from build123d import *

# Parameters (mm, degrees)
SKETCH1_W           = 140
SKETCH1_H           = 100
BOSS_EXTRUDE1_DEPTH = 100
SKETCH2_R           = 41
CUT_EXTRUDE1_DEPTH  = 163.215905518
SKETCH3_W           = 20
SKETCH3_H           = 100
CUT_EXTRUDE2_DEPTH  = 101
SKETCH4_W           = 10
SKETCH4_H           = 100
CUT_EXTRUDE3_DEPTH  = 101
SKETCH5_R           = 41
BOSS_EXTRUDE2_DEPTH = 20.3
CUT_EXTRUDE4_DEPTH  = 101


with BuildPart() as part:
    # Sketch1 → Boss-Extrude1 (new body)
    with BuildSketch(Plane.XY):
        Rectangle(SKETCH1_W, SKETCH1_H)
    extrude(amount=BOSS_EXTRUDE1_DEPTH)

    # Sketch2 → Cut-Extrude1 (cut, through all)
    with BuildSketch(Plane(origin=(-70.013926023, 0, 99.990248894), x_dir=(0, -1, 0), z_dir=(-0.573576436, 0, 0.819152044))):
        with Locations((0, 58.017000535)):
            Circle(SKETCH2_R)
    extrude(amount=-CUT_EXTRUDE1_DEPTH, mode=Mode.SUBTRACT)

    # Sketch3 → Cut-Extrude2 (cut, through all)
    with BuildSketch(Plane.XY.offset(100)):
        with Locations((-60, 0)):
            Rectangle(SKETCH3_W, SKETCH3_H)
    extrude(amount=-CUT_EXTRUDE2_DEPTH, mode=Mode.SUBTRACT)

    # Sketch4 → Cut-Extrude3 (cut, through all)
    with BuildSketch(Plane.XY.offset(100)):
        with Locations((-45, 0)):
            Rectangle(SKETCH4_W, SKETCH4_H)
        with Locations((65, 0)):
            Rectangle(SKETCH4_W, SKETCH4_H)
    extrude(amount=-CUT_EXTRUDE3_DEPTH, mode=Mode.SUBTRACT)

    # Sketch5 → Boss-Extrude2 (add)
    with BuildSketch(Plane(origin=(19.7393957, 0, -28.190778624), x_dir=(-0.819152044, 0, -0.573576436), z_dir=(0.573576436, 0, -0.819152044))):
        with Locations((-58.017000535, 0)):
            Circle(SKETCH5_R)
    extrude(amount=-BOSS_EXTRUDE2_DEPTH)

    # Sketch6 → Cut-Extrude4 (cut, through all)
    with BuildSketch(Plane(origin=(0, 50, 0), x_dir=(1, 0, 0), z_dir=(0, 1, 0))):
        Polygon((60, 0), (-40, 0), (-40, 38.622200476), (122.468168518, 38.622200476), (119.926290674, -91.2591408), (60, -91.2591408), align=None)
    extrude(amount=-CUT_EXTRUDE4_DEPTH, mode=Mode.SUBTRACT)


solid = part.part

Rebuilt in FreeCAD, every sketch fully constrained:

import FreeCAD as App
import Part
import Sketcher

doc = App.newDocument("Part")
body = doc.addObject("PartDesign::Body", "Body")

# Sketch on XY plane
sketch1 = body.newObject("Sketcher::SketchObject", "Sketch")
sketch1.AttachmentSupport = (doc.getObject("XY_Plane"), [""])
sketch1.MapMode = "FlatFace"
sketch1.addGeometry(Part.LineSegment(App.Vector(-70, 50, 0), App.Vector(-70, -50, 0)), False)
sketch1.addGeometry(Part.LineSegment(App.Vector(-70, -50, 0), App.Vector(70, -50, 0)), False)
sketch1.addGeometry(Part.LineSegment(App.Vector(70, -50, 0), App.Vector(70, 50, 0)), False)
sketch1.addGeometry(Part.LineSegment(App.Vector(70, 50, 0), App.Vector(-70, 50, 0)), False)
sketch1.addConstraint(Sketcher.Constraint("Coincident", 0, 2, 1, 1))
sketch1.addConstraint(Sketcher.Constraint("Coincident", 1, 2, 2, 1))
sketch1.addConstraint(Sketcher.Constraint("Coincident", 2, 2, 3, 1))
sketch1.addConstraint(Sketcher.Constraint("Coincident", 3, 2, 0, 1))
sketch1.addConstraint(Sketcher.Constraint("Vertical", 0))
sketch1.addConstraint(Sketcher.Constraint("Horizontal", 1))
sketch1.addConstraint(Sketcher.Constraint("Vertical", 2))
sketch1.addConstraint(Sketcher.Constraint("Horizontal", 3))
sketch1.addConstraint(Sketcher.Constraint("Symmetric", 0, 2, 2, 2, -1, 1))
sketch1.addConstraint(Sketcher.Constraint("DistanceX", 1, 1, 1, 2, 140.0))
sketch1.addConstraint(Sketcher.Constraint("DistanceY", 0, 2, 0, 1, 100.0))
pad1 = body.newObject("PartDesign::Pad", "Pad")
pad1.Profile = sketch1
pad1.Length = 100

# Sketch on an angled plane
sketch2 = body.newObject("Sketcher::SketchObject", "Sketch001")
sketch2.Placement = App.Placement(App.Vector(-70.013926, 0, 99.990249), App.Rotation(App.Vector(0, -1, 0), App.Vector(0.819152044, 0, 0.573576436), App.Vector(-0.573576436, 0, 0.819152044), "ZXY"))
sketch2.addGeometry(Part.Circle(App.Vector(0, 58.017, 0), App.Vector(0, 0, 1), 41), False)
sketch2.addConstraint(Sketcher.Constraint("PointOnObject", 0, 3, -2))
sketch2.addConstraint(Sketcher.Constraint("Diameter", 0, 82.0))
sketch2.addConstraint(Sketcher.Constraint("DistanceY", -1, 1, 0, 3, 58.017))
pocket1 = body.newObject("PartDesign::Pocket", "Pocket")
pocket1.Profile = sketch2
pocket1.Type = "ThroughAll"

# Sketch on XY plane
sketch3 = body.newObject("Sketcher::SketchObject", "Sketch002")
sketch3.AttachmentSupport = (doc.getObject("XY_Plane"), [""])
sketch3.MapMode = "FlatFace"
sketch3.AttachmentOffset = App.Placement(App.Vector(0, 0, 100), App.Rotation())
sketch3.addGeometry(Part.LineSegment(App.Vector(-70, 50, 0), App.Vector(-70, -50, 0)), False)
sketch3.addGeometry(Part.LineSegment(App.Vector(-70, -50, 0), App.Vector(-50, -50, 0)), False)
sketch3.addGeometry(Part.LineSegment(App.Vector(-50, -50, 0), App.Vector(-50, 50, 0)), False)
sketch3.addGeometry(Part.LineSegment(App.Vector(-50, 50, 0), App.Vector(-70, 50, 0)), False)
sketch3.addConstraint(Sketcher.Constraint("Coincident", 0, 2, 1, 1))
sketch3.addConstraint(Sketcher.Constraint("Coincident", 1, 2, 2, 1))
sketch3.addConstraint(Sketcher.Constraint("Coincident", 2, 2, 3, 1))
sketch3.addConstraint(Sketcher.Constraint("Coincident", 3, 2, 0, 1))
sketch3.addConstraint(Sketcher.Constraint("Vertical", 0))
sketch3.addConstraint(Sketcher.Constraint("Horizontal", 1))
sketch3.addConstraint(Sketcher.Constraint("Vertical", 2))
sketch3.addConstraint(Sketcher.Constraint("Horizontal", 3))
sketch3.addConstraint(Sketcher.Constraint("DistanceX", 1, 1, 1, 2, 20.0))
sketch3.addConstraint(Sketcher.Constraint("DistanceY", 0, 2, 0, 1, 100.0))
sketch3.addConstraint(Sketcher.Constraint("DistanceX", 0, 2, -1, 1, 70.0))
sketch3.addConstraint(Sketcher.Constraint("DistanceY", 0, 2, -1, 1, 50.0))
pocket2 = body.newObject("PartDesign::Pocket", "Pocket001")
pocket2.Profile = sketch3
pocket2.Type = "ThroughAll"

# Sketch on XY plane
sketch4 = body.newObject("Sketcher::SketchObject", "Sketch003")
sketch4.AttachmentSupport = (doc.getObject("XY_Plane"), [""])
sketch4.MapMode = "FlatFace"
sketch4.AttachmentOffset = App.Placement(App.Vector(0, 0, 100), App.Rotation())
sketch4.addGeometry(Part.LineSegment(App.Vector(-50, 50, 0), App.Vector(-50, -50, 0)), False)
sketch4.addGeometry(Part.LineSegment(App.Vector(-50, -50, 0), App.Vector(-40, -50, 0)), False)
sketch4.addGeometry(Part.LineSegment(App.Vector(-40, -50, 0), App.Vector(-40, 50, 0)), False)
sketch4.addGeometry(Part.LineSegment(App.Vector(-40, 50, 0), App.Vector(-50, 50, 0)), False)
sketch4.addGeometry(Part.LineSegment(App.Vector(60, 50, 0), App.Vector(60, -50, 0)), False)
sketch4.addGeometry(Part.LineSegment(App.Vector(60, -50, 0), App.Vector(70, -50, 0)), False)
sketch4.addGeometry(Part.LineSegment(App.Vector(70, -50, 0), App.Vector(70, 50, 0)), False)
sketch4.addGeometry(Part.LineSegment(App.Vector(70, 50, 0), App.Vector(60, 50, 0)), False)
sketch4.addConstraint(Sketcher.Constraint("Coincident", 0, 2, 1, 1))
sketch4.addConstraint(Sketcher.Constraint("Coincident", 1, 2, 2, 1))
sketch4.addConstraint(Sketcher.Constraint("Coincident", 2, 2, 3, 1))
sketch4.addConstraint(Sketcher.Constraint("Coincident", 3, 2, 0, 1))
sketch4.addConstraint(Sketcher.Constraint("Coincident", 4, 2, 5, 1))
sketch4.addConstraint(Sketcher.Constraint("Coincident", 5, 2, 6, 1))
sketch4.addConstraint(Sketcher.Constraint("Coincident", 6, 2, 7, 1))
sketch4.addConstraint(Sketcher.Constraint("Coincident", 7, 2, 4, 1))
sketch4.addConstraint(Sketcher.Constraint("Vertical", 0))
sketch4.addConstraint(Sketcher.Constraint("Horizontal", 1))
sketch4.addConstraint(Sketcher.Constraint("Vertical", 2))
sketch4.addConstraint(Sketcher.Constraint("Horizontal", 3))
sketch4.addConstraint(Sketcher.Constraint("Vertical", 4))
sketch4.addConstraint(Sketcher.Constraint("Horizontal", 5))
sketch4.addConstraint(Sketcher.Constraint("Vertical", 6))
sketch4.addConstraint(Sketcher.Constraint("Horizontal", 7))
sketch4.addConstraint(Sketcher.Constraint("Horizontal", 1, 2, 4, 2))
sketch4.addConstraint(Sketcher.Constraint("Horizontal", 3, 2, 6, 2))
sketch4.addConstraint(Sketcher.Constraint("Equal", 3, 5))
sketch4.addConstraint(Sketcher.Constraint("DistanceX", 1, 1, 1, 2, 10.0))
sketch4.addConstraint(Sketcher.Constraint("DistanceY", 0, 2, 0, 1, 100.0))
sketch4.addConstraint(Sketcher.Constraint("DistanceX", 0, 2, -1, 1, 50.0))
sketch4.addConstraint(Sketcher.Constraint("DistanceY", 0, 2, -1, 1, 50.0))
sketch4.addConstraint(Sketcher.Constraint("DistanceX", -1, 1, 4, 2, 60.0))
pocket3 = body.newObject("PartDesign::Pocket", "Pocket002")
pocket3.Profile = sketch4
pocket3.Type = "ThroughAll"

# Sketch on an angled plane
sketch5 = body.newObject("Sketcher::SketchObject", "Sketch004")
sketch5.Placement = App.Placement(App.Vector(19.739396, 0, -28.190779), App.Rotation(App.Vector(-0.819152044, 0, -0.573576436), App.Vector(0, 0.999999999, 0), App.Vector(0.573576436, 0, -0.819152044), "ZXY"))
sketch5.addGeometry(Part.Circle(App.Vector(-58.017, 0, 0), App.Vector(0, 0, 1), 41), False)
sketch5.addConstraint(Sketcher.Constraint("PointOnObject", 0, 3, -1))
sketch5.addConstraint(Sketcher.Constraint("Diameter", 0, 82.0))
sketch5.addConstraint(Sketcher.Constraint("DistanceX", 0, 3, -1, 1, 58.017))
pad2 = body.newObject("PartDesign::Pad", "Pad001")
pad2.Profile = sketch5
pad2.Length = 20.3
pad2.Reversed = True

# Sketch on XZ plane
sketch6 = body.newObject("Sketcher::SketchObject", "Sketch005")
sketch6.AttachmentSupport = (doc.getObject("XZ_Plane"), [""])
sketch6.MapMode = "FlatFace"
sketch6.AttachmentOffset = App.Placement(App.Vector(0, 0, -50), App.Rotation())
sketch6.addGeometry(Part.LineSegment(App.Vector(-40, 0, 0), App.Vector(60, 0, 0)), False)
sketch6.addGeometry(Part.LineSegment(App.Vector(60, 0, 0), App.Vector(60, 91.259141, 0)), False)
sketch6.addGeometry(Part.LineSegment(App.Vector(60, 91.259141, 0), App.Vector(119.926291, 91.259141, 0)), False)
sketch6.addGeometry(Part.LineSegment(App.Vector(119.926291, 91.259141, 0), App.Vector(122.468169, -38.6222, 0)), False)
sketch6.addGeometry(Part.LineSegment(App.Vector(122.468169, -38.6222, 0), App.Vector(-40, -38.6222, 0)), False)
sketch6.addGeometry(Part.LineSegment(App.Vector(-40, -38.6222, 0), App.Vector(-40, 0, 0)), False)
sketch6.addConstraint(Sketcher.Constraint("Coincident", 0, 2, 1, 1))
sketch6.addConstraint(Sketcher.Constraint("Coincident", 1, 2, 2, 1))
sketch6.addConstraint(Sketcher.Constraint("Coincident", 2, 2, 3, 1))
sketch6.addConstraint(Sketcher.Constraint("Coincident", 3, 2, 4, 1))
sketch6.addConstraint(Sketcher.Constraint("Coincident", 4, 2, 5, 1))
sketch6.addConstraint(Sketcher.Constraint("Coincident", 5, 2, 0, 1))
sketch6.addConstraint(Sketcher.Constraint("Horizontal", 0))
sketch6.addConstraint(Sketcher.Constraint("Vertical", 1))
sketch6.addConstraint(Sketcher.Constraint("Horizontal", 2))
sketch6.addConstraint(Sketcher.Constraint("Horizontal", 4))
sketch6.addConstraint(Sketcher.Constraint("Vertical", 5))
sketch6.addConstraint(Sketcher.Constraint("PointOnObject", 0, 2, -1))
sketch6.addConstraint(Sketcher.Constraint("DistanceX", 0, 1, 0, 2, 100.0))
sketch6.addConstraint(Sketcher.Constraint("DistanceX", -1, 1, 0, 2, 60.0))
sketch6.addConstraint(Sketcher.Constraint("DistanceY", 5, 1, 5, 2, 38.6222))
sketch6.addConstraint(Sketcher.Constraint("DistanceX", 2, 1, 2, 2, 59.926291))
sketch6.addConstraint(Sketcher.Constraint("DistanceX", 4, 2, 4, 1, 162.468169))
sketch6.addConstraint(Sketcher.Constraint("DistanceY", 1, 1, 1, 2, 91.259141))
pocket4 = body.newObject("PartDesign::Pocket", "Pocket003")
pocket4.Profile = sketch6
pocket4.Type = "ThroughAll"
pocket4.Reversed = True

doc.recompute()
